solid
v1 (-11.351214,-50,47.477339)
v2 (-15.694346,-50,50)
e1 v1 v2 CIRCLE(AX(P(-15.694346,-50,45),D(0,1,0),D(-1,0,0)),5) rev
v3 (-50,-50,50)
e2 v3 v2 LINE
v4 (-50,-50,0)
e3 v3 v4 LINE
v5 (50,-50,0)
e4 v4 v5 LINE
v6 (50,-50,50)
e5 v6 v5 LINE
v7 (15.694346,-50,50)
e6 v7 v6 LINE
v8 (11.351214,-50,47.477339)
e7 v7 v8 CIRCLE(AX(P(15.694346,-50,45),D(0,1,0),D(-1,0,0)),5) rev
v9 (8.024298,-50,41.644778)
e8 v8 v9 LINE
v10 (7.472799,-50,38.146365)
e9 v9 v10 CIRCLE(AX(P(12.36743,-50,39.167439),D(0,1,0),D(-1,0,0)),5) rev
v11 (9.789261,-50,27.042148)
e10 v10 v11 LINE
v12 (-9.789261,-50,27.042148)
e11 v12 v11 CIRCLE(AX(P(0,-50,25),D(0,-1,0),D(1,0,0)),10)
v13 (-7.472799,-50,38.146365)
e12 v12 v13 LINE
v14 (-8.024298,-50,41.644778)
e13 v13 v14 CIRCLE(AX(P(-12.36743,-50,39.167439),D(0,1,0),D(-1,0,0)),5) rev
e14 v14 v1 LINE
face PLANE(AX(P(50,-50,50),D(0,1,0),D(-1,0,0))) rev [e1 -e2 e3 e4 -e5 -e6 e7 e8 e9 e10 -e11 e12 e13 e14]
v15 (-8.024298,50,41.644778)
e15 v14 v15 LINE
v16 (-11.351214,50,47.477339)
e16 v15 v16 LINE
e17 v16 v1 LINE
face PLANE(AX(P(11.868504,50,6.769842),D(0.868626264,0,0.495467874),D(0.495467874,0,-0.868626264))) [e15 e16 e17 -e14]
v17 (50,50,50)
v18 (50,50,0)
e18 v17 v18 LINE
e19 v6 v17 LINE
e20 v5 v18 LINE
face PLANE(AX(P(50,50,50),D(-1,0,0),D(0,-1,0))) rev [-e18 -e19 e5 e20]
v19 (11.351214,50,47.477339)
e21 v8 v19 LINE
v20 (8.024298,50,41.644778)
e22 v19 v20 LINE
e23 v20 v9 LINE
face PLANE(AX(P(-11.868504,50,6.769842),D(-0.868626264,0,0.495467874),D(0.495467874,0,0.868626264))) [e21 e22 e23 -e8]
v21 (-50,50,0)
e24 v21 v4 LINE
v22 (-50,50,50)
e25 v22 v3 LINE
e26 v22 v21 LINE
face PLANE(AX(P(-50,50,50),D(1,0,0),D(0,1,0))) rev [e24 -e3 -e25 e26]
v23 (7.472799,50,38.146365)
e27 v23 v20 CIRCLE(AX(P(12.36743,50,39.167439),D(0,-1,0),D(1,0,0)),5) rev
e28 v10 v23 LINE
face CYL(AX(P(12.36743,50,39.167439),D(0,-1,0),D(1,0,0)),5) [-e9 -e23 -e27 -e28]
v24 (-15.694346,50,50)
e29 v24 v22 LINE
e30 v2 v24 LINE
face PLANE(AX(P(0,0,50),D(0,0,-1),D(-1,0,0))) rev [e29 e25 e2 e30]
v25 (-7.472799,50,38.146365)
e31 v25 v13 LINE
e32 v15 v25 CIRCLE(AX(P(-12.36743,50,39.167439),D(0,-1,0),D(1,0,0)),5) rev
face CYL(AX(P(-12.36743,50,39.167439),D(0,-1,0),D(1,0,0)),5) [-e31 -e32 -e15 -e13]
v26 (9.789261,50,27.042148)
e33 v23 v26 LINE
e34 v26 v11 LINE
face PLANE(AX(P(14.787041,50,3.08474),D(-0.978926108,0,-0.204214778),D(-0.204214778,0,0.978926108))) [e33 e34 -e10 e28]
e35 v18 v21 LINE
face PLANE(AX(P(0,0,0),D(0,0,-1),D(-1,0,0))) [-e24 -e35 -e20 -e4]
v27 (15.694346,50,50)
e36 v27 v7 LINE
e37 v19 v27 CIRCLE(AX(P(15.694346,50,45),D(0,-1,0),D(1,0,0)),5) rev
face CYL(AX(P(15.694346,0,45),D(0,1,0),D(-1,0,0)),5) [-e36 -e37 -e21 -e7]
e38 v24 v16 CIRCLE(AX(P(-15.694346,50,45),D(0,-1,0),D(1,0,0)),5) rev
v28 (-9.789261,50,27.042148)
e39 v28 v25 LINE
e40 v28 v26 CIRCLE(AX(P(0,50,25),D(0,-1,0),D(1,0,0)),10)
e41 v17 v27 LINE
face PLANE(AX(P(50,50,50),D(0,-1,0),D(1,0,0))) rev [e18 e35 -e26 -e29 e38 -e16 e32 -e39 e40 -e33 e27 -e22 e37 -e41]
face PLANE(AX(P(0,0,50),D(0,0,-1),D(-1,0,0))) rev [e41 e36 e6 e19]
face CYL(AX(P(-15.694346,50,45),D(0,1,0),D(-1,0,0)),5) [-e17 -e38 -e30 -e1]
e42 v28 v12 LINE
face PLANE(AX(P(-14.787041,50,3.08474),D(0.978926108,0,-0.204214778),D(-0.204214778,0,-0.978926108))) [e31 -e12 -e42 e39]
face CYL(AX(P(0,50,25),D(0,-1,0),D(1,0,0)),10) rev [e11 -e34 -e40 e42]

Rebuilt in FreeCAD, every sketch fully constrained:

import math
import FreeCAD as App
import Part
import Sketcher
Q = App.Units.Quantity


def edges_at(feature, points):
    """Names of the edges that pass closest to the given points."""
    edges = feature.Shape.Edges
    near = lambda p: min(range(len(edges)), key=lambda i: edges[i].distToShape(Part.Vertex(*p))[0])
    return sorted({f"Edge{near(p) + 1}" for p in points})

doc = App.newDocument("Part")
params = doc.addObject("Spreadsheet::Sheet", "Params")
for row, (alias, value) in enumerate([
    ("sketch1_width", "100 mm"),
    ("pad1_length", "50 mm"),
    ("sketch2_radius", "10 mm"),
    ("fillet_radius", "5 mm"),
], start=1):
    params.set(f"A{row}", alias)
    params.set(f"B{row}", "=" + value)
    params.setAlias(f"B{row}", alias)

body = doc.addObject("PartDesign::Body", "Body")

sketch1 = body.newObject("Sketcher::SketchObject", "Sketch")
sketch1.AttachmentSupport = (doc.getObject("XY_Plane"), [""])
sketch1.MapMode = "FlatFace"
sketch1.addGeometry([
    Part.LineSegment(App.Vector(-50, 50, 0), App.Vector(-50, -50, 0)),
    Part.LineSegment(App.Vector(-50, -50, 0), App.Vector(50, -50, 0)),
    Part.LineSegment(App.Vector(50, -50, 0), App.Vector(50, 50, 0)),
    Part.LineSegment(App.Vector(50, 50, 0), App.Vector(-50, 50, 0)),
], False)
sketch1.addConstraint([
    Sketcher.Constraint("Coincident", 0, 2, 1, 1),
    Sketcher.Constraint("Coincident", 1, 2, 2, 1),
    Sketcher.Constraint("Coincident", 2, 2, 3, 1),
    Sketcher.Constraint("Coincident", 3, 2, 0, 1),
    Sketcher.Constraint("Vertical", 0),
    Sketcher.Constraint("Horizontal", 1),
    Sketcher.Constraint("Vertical", 2),
    Sketcher.Constraint("Horizontal", 3),
    Sketcher.Constraint("Symmetric", 0, 2, 2, 2, -1, 1),
    Sketcher.Constraint("Equal", 3, 0),
    Sketcher.Constraint("DistanceX", 1, 1, 1, 2, Q("100 mm")),
])
sketch1.setExpression("Constraints[10]", "Params.sketch1_width")
pad1 = body.newObject("PartDesign::Pad", "Pad")
pad1.Profile = sketch1
pad1.setExpression("Length", "Params.pad1_length")

sketch2 = body.newObject("Sketcher::SketchObject", "Sketch001")
sketch2.AttachmentSupport = (doc.getObject("XZ_Plane"), [""])
sketch2.MapMode = "FlatFace"
sketch2.AttachmentOffset = App.Placement(App.Vector(0, 0, 50), App.Rotation())
sketch2.addGeometry([
    Part.ArcOfCircle(Part.Circle(App.Vector(0, 25, 0), App.Vector(0, 0, 1), 10), math.radians(168), math.radians(372)),
    Part.LineSegment(App.Vector(10, 27, 0), App.Vector(7, 40, 0)),
    Part.LineSegment(App.Vector(7, 40, 0), App.Vector(13, 50, 0)),
    Part.LineSegment(App.Vector(13, 50, 0), App.Vector(-13, 50, 0)),
    Part.LineSegment(App.Vector(-13, 50, 0), App.Vector(-7, 40, 0)),
    Part.LineSegment(App.Vector(-7, 40, 0), App.Vector(-10, 27, 0)),
], False)
sketch2.addConstraint([
    Sketcher.Constraint("Tangent", 0, 2, 1, 1),
    Sketcher.Constraint("Coincident", 1, 2, 2, 1),
    Sketcher.Constraint("Coincident", 2, 2, 3, 1),
    Sketcher.Constraint("Coincident", 3, 2, 4, 1),
    Sketcher.Constraint("Coincident", 4, 2, 5, 1),
    Sketcher.Constraint("Tangent", 5, 2, 0, 1),
    Sketcher.Constraint("Horizontal", 3),
    Sketcher.Constraint("Symmetric", 1, 2, 4, 2, -2),
    Sketcher.Constraint("PointOnObject", 0, 3, -2),
    Sketcher.Constraint("Equal", 2, 4),
    Sketcher.Constraint("Radius", 0, Q("10 mm")),
    Sketcher.Constraint("DistanceY", -1, 1, 0, 3, Q("25 mm")),
    Sketcher.Constraint("DistanceY", -1, 1, 1, 2, Q("40 mm")),
    Sketcher.Constraint("DistanceY", -1, 1, 2, 2, Q("50 mm")),
    Sketcher.Constraint("DistanceX", 3, 2, 3, 1, Q("25.5803 mm")),
    Sketcher.Constraint("Distance", 2, Q("11.512431 mm")),
])
sketch2.setExpression("Constraints[10]", "Params.sketch2_radius")
pocket1 = body.newObject("PartDesign::Pocket", "Pocket")
pocket1.Profile = sketch2
pocket1.Type = "ThroughAll"
doc.recompute()

fillet = body.newObject("PartDesign::Fillet", "Fillet")
fillet.Base = (pocket1, edges_at(pocket1, [
    (-12.79, 0, 50),
    (12.79, 0, 50),
    (7.086, 0, 40),
    (-7.086, 0, 40),
]))
fillet.setExpression("Radius", "Params.fillet_radius")

doc.recompute()
